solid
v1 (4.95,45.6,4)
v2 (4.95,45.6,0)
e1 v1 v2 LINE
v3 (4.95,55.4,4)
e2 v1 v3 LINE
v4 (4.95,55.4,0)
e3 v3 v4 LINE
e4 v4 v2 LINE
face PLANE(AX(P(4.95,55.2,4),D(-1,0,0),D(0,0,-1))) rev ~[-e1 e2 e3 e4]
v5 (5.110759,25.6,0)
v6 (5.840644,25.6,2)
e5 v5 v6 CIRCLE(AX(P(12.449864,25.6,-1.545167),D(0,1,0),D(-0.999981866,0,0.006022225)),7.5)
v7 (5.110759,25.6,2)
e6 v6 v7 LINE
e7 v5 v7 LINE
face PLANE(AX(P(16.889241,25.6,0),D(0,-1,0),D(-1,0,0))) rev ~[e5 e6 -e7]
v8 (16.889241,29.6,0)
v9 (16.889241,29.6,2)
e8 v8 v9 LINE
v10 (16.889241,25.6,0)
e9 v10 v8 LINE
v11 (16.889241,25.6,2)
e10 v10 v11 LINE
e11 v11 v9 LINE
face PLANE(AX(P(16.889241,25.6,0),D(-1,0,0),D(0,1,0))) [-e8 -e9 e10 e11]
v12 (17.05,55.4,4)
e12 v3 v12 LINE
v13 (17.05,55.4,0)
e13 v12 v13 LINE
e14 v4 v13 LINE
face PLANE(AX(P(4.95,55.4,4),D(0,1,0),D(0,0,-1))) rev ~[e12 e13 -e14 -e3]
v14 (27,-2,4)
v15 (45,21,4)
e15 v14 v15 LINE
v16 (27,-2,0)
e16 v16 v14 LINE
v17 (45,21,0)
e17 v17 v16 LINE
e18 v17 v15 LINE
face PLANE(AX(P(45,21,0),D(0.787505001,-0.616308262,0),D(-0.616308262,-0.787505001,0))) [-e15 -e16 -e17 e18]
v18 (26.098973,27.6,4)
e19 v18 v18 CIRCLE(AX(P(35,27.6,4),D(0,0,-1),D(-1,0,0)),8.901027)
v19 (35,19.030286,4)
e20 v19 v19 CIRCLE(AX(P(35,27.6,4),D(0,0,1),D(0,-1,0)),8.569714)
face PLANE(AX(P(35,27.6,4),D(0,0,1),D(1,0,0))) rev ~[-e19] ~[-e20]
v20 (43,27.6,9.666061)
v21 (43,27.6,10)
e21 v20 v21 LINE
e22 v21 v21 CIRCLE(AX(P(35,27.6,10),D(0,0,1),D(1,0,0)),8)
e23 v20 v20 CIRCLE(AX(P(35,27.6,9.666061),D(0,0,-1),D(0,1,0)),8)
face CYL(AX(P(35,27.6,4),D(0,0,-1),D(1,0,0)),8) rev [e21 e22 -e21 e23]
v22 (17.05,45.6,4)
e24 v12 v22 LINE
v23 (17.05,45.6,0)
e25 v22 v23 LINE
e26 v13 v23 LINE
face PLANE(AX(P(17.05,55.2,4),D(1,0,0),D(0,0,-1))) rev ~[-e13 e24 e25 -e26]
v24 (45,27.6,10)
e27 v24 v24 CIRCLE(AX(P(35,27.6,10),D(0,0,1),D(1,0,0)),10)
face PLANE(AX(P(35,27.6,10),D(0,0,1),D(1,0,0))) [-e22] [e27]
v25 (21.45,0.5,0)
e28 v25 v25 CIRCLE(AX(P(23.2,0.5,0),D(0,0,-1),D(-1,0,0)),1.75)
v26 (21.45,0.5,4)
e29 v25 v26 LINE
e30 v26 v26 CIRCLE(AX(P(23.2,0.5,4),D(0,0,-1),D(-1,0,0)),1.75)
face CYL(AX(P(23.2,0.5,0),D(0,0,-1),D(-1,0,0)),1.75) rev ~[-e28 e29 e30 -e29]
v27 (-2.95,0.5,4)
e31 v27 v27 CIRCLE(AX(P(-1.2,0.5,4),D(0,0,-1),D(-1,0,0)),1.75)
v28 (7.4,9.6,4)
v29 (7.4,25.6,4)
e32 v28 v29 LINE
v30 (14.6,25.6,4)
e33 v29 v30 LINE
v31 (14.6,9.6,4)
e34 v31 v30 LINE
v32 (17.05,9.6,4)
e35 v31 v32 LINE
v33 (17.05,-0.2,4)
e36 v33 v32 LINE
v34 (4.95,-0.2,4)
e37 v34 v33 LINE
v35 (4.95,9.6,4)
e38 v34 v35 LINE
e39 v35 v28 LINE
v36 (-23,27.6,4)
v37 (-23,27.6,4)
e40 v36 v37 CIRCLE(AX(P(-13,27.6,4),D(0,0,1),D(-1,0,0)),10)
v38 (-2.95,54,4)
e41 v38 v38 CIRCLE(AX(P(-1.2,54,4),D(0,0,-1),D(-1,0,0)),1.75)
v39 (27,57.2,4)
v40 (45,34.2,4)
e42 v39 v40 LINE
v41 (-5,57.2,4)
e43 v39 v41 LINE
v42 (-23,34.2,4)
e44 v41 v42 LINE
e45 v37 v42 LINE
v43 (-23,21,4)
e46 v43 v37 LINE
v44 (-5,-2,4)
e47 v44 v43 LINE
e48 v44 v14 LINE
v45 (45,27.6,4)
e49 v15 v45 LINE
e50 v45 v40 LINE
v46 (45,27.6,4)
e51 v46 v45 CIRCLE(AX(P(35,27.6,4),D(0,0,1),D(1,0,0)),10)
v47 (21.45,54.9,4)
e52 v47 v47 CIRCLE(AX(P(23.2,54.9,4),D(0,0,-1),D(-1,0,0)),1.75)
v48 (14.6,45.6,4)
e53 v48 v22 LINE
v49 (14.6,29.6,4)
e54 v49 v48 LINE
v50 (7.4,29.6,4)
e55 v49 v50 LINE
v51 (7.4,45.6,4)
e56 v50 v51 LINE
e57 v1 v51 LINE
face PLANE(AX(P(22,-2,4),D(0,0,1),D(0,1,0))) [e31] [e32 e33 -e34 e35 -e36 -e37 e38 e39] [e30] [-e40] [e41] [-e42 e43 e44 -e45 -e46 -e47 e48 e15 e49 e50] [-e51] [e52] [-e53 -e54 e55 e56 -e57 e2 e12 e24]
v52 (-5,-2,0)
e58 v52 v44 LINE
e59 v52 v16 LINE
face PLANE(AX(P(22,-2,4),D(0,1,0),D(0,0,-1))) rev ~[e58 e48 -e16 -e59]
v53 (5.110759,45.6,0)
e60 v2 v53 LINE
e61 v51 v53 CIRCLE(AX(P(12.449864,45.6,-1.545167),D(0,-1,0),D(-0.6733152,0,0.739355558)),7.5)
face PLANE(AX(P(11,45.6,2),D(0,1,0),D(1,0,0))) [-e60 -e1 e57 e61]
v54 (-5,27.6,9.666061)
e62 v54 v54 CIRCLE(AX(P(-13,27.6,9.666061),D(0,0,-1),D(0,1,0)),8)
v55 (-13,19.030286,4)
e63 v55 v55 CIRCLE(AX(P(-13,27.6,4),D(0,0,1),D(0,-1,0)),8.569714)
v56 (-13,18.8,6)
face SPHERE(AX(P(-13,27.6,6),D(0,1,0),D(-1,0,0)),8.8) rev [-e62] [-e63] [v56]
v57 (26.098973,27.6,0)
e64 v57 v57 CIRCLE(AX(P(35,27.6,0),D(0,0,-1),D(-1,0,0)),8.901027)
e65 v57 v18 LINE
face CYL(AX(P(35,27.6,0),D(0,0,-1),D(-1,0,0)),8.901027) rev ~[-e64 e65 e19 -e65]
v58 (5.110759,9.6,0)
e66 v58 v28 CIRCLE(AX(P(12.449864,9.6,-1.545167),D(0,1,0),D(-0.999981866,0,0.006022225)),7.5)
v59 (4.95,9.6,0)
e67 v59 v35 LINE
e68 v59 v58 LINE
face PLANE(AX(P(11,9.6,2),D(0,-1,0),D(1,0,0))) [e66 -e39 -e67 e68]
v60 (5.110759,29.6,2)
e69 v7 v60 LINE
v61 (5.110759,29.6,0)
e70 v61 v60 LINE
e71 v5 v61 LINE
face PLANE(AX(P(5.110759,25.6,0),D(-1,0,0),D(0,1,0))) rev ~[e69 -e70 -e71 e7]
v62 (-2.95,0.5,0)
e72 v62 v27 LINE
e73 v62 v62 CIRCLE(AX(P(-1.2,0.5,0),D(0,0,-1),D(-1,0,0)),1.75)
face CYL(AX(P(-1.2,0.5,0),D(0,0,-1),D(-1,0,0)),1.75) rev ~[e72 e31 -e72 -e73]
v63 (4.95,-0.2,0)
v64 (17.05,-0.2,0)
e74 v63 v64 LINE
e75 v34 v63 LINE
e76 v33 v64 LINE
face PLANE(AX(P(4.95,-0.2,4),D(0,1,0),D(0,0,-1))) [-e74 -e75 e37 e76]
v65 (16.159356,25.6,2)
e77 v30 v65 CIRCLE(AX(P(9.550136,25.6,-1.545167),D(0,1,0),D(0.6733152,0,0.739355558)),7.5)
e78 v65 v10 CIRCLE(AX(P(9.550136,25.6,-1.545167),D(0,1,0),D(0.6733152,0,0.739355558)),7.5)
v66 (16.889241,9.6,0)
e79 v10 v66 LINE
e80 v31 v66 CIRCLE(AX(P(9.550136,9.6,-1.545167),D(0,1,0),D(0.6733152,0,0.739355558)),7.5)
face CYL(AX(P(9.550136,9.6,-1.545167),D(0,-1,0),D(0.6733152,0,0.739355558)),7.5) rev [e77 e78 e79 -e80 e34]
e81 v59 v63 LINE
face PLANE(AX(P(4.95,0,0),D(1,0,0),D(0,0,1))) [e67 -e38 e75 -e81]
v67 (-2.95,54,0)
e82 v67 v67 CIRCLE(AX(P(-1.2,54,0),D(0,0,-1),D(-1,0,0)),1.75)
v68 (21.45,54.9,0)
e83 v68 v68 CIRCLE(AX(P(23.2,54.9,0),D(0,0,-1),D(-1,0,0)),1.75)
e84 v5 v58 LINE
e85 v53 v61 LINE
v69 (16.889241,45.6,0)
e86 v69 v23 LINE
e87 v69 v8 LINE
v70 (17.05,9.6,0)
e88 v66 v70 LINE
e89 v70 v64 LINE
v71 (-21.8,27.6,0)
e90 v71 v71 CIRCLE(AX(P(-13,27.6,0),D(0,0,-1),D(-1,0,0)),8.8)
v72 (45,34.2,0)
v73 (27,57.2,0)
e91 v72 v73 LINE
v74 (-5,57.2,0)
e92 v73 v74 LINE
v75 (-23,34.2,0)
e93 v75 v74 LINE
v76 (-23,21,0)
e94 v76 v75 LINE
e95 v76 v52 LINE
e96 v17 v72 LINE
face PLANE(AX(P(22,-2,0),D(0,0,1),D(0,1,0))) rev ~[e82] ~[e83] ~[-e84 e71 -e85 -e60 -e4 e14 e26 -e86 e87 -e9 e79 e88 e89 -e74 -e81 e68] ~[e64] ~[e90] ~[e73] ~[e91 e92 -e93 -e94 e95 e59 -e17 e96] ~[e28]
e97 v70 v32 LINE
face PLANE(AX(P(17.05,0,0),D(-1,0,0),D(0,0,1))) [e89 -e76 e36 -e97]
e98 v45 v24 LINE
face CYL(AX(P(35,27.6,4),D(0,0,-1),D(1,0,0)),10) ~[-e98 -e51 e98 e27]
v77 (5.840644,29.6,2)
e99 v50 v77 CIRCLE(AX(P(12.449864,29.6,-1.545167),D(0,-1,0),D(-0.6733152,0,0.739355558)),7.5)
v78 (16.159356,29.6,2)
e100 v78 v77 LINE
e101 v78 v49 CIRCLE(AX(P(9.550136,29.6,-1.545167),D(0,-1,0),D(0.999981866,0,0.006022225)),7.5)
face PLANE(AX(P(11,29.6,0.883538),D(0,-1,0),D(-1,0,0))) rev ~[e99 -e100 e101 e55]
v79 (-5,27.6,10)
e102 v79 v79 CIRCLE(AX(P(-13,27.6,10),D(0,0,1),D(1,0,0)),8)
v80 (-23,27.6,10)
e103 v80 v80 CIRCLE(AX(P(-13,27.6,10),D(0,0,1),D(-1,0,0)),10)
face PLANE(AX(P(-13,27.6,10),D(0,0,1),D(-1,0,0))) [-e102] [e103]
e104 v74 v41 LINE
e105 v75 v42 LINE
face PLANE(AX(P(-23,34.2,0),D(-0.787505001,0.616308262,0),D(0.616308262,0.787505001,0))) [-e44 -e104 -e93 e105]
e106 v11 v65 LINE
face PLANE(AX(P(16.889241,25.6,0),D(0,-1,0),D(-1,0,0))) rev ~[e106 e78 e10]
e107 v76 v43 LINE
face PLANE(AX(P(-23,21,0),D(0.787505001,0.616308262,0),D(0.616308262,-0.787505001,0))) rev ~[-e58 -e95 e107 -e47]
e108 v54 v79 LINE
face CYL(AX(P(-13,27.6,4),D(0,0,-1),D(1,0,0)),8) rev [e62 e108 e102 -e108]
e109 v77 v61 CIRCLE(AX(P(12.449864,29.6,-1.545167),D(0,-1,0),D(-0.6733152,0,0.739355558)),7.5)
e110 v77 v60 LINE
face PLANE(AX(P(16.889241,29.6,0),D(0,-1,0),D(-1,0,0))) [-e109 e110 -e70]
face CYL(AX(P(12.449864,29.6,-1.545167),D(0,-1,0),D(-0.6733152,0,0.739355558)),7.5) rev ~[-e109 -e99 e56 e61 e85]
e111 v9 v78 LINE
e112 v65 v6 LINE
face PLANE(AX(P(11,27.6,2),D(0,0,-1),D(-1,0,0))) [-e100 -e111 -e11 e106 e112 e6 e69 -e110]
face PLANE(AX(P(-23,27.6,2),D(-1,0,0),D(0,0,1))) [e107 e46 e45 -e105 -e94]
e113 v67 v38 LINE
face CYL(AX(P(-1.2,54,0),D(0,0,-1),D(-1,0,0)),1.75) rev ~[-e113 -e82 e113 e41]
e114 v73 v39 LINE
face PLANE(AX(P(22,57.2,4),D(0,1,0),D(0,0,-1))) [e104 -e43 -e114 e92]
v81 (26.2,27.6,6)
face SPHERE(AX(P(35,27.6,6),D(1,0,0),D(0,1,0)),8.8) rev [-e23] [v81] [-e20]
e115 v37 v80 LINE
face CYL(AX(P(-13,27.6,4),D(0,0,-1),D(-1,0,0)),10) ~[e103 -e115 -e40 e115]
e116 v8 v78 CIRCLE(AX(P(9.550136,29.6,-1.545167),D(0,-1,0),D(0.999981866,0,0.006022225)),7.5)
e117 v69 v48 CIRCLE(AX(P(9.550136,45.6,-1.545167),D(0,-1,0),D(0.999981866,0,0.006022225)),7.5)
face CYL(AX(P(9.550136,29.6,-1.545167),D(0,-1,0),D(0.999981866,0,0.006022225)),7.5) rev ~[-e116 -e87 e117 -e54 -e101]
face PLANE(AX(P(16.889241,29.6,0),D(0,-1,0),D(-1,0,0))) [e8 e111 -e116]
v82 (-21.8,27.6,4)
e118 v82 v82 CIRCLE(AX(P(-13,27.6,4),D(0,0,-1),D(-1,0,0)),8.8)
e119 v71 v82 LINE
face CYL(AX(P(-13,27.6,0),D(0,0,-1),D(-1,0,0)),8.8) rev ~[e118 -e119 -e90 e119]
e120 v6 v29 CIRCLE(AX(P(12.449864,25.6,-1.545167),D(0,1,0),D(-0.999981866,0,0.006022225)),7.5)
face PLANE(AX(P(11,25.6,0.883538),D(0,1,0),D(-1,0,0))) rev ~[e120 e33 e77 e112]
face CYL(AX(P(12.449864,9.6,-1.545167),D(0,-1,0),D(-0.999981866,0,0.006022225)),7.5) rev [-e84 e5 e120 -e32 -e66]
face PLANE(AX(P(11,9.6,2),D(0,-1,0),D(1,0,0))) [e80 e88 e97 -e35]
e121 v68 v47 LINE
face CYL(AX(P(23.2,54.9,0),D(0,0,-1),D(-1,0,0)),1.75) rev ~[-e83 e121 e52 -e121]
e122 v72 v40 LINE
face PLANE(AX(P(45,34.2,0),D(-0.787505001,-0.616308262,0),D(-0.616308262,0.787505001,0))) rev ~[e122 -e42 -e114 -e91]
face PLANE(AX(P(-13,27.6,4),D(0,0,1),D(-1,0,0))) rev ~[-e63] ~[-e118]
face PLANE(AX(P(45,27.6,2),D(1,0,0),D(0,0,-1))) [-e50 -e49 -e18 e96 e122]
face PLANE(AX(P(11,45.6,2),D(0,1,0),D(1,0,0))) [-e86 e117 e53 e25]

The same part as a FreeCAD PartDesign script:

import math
import FreeCAD as App
import Part
import Sketcher

V = App.Vector
Q = App.Units.Quantity


def add_polygon(sketch, points):
    """Adds a closed chain of lines whose ends are joined by coincident constraints."""
    first, n = sketch.GeometryCount, len(points)
    for a, b in zip(points, points[1:] + points[:1]):
        sketch.addGeometry(Part.LineSegment(App.Vector(*a, 0), App.Vector(*b, 0)), False)
    for i in range(n):
        sketch.addConstraint(Sketcher.Constraint("Coincident", first + i, 2, first + (i + 1) % n, 1))

doc = App.newDocument("Part")
body = doc.addObject("PartDesign::Body", "Body")

sketch1 = body.newObject("Sketcher::SketchObject", "Sketch")
sketch1.AttachmentSupport = (doc.getObject("XY_Plane"), [""])
sketch1.MapMode = "FlatFace"
add_polygon(sketch1, [(0, 55.2), (0, 0), (22, 0), (22, 55.2)])
sketch1.addConstraint([
    Sketcher.Constraint("Vertical", 0),
    Sketcher.Constraint("Horizontal", 1),
    Sketcher.Constraint("Vertical", 2),
    Sketcher.Constraint("Horizontal", 3),
    Sketcher.Constraint("Coincident", 0, 2, -1, 1),
    Sketcher.Constraint("DistanceX", 1, 1, 1, 2, Q("22 mm")),
    Sketcher.Constraint("DistanceY", 0, 2, 0, 1, Q("55.2 mm")),
])
pad1 = body.newObject("PartDesign::Pad", "Pad")
pad1.Profile = sketch1
pad1.Length = 4

sketch2 = body.newObject("Sketcher::SketchObject", "Sketch001")
sketch2.AttachmentSupport = (doc.getObject("XZ_Plane"), [""])
sketch2.MapMode = "FlatFace"
sketch2.AttachmentOffset = App.Placement(V(0, 0, -55.2), App.Rotation())
add_polygon(sketch2, [(4.95, 0), (4.95, 4), (17.05, 4), (17.05, 0)])
sketch2.addConstraint([
    Sketcher.Constraint("Vertical", 0),
    Sketcher.Constraint("Horizontal", 1),
    Sketcher.Constraint("Vertical", 2),
    Sketcher.Constraint("Horizontal", 3),
    Sketcher.Constraint("PointOnObject", 2, 2, -1),
    Sketcher.Constraint("DistanceY", 0, 1, 0, 2, Q("4 mm")),
    Sketcher.Constraint("DistanceX", 1, 1, 1, 2, Q("12.1 mm")),
    Sketcher.Constraint("DistanceX", -1, 1, 0, 2, Q("4.95 mm")),
])
pocket1 = body.newObject("PartDesign::Pocket", "Pocket")
pocket1.Profile = sketch2
pocket1.Length = 9.6
pocket1.Reversed = True

sketch3 = body.newObject("Sketcher::SketchObject", "Sketch002")
sketch3.AttachmentSupport = (doc.getObject("XZ_Plane"), [""])
sketch3.MapMode = "FlatFace"
add_polygon(sketch3, [(4.95, 4), (4.95, 0), (17.05, 0), (17.05, 4)])
sketch3.addConstraint([
    Sketcher.Constraint("Vertical", 0),
    Sketcher.Constraint("Horizontal", 1),
    Sketcher.Constraint("Vertical", 2),
    Sketcher.Constraint("Horizontal", 3),
    Sketcher.Constraint("PointOnObject", 0, 2, -1),
    Sketcher.Constraint("DistanceY", 0, 2, 0, 1, Q("4 mm")),
    Sketcher.Constraint("DistanceX", 1, 1, 1, 2, Q("12.1 mm")),
    Sketcher.Constraint("DistanceX", -1, 1, 0, 2, Q("4.95 mm")),
])
pocket2 = body.newObject("PartDesign::Pocket", "Pocket001")
pocket2.Profile = sketch3
pocket2.Length = 9.6

sketch4 = body.newObject("Sketcher::SketchObject", "Sketch003")
sketch4.AttachmentSupport = (doc.getObject("XZ_Plane"), [""])
sketch4.MapMode = "FlatFace"
sketch4.AttachmentOffset = App.Placement(V(0, 0, -9.6), App.Rotation())
sketch4.addGeometry([
    Part.LineSegment(V(14.6, 4, 0), V(7.4, 4, 0)),
    Part.ArcOfCircle(Part.Circle(V(12.449864, -1.545167, 0), V(0, 0, 1), 7.5), math.radians(132.323452), math.radians(179.65495)),
    Part.LineSegment(V(4.95, -1.5, 0), V(17.05, -1.5, 0)),
    Part.ArcOfCircle(Part.Circle(V(9.550136, -1.545167, 0), V(0, 0, 1), 7.5), math.radians(0.34505), math.radians(47.676548)),
], False)
sketch4.addConstraint([
    Sketcher.Constraint("Coincident", 0, 2, 1, 1),
    Sketcher.Constraint("Coincident", 1, 2, 2, 1),
    Sketcher.Constraint("Coincident", 2, 2, 3, 1),
    Sketcher.Constraint("Coincident", 3, 2, 0, 1),
    Sketcher.Constraint("Horizontal", 0),
    Sketcher.Constraint("Horizontal", 2),
    Sketcher.Constraint("Equal", 1, 3),
    Sketcher.Constraint("Horizontal", 1, 3, 3, 3),
    Sketcher.Constraint("Radius", 1, Q("7.5 mm")),
    Sketcher.Constraint("DistanceX", 0, 2, 0, 1, Q("7.2 mm")),
    Sketcher.Constraint("DistanceX", 2, 1, 2, 2, Q("12.1 mm")),
    Sketcher.Constraint("DistanceY", -1, 1, 0, 2, Q("4 mm")),
    Sketcher.Constraint("DistanceX", -1, 1, 0, 2, Q("7.4 mm")),
    Sketcher.Constraint("DistanceY", 1, 2, -1, 1, Q("1.5 mm")),
])
pocket3 = body.newObject("PartDesign::Pocket", "Pocket002")
pocket3.Profile = sketch4
pocket3.Length = 16

sketch5 = body.newObject("Sketcher::SketchObject", "Sketch004")
sketch5.AttachmentSupport = (doc.getObject("XZ_Plane"), [""])
sketch5.MapMode = "FlatFace"
sketch5.AttachmentOffset = App.Placement(V(0, 0, -29.6), App.Rotation())
sketch5.addGeometry([
    Part.LineSegment(V(17.05, -1.5, 0), V(4.95, -1.5, 0)),
    Part.ArcOfCircle(Part.Circle(V(12.449864, -1.545167, 0), V(0, 0, 1), 7.5), math.radians(132.323452), math.radians(179.65495)),
    Part.LineSegment(V(7.4, 4, 0), V(14.6, 4, 0)),
    Part.ArcOfCircle(Part.Circle(V(9.550136, -1.545167, 0), V(0, 0, 1), 7.5), math.radians(0.34505), math.radians(47.676548)),
], False)
sketch5.addConstraint([
    Sketcher.Constraint("Coincident", 0, 2, 1, 2),
    Sketcher.Constraint("Coincident", 1, 1, 2, 1),
    Sketcher.Constraint("Coincident", 2, 2, 3, 2),
    Sketcher.Constraint("Coincident", 3, 1, 0, 1),
    Sketcher.Constraint("Horizontal", 0),
    Sketcher.Constraint("Horizontal", 2),
    Sketcher.Constraint("Equal", 1, 3),
    Sketcher.Constraint("Horizontal", 1, 3, 3, 3),
    Sketcher.Constraint("Radius", 1, Q("7.5 mm")),
    Sketcher.Constraint("DistanceX", 0, 2, 0, 1, Q("12.1 mm")),
    Sketcher.Constraint("DistanceX", 2, 1, 2, 2, Q("7.2 mm")),
    Sketcher.Constraint("DistanceY", -1, 1, 1, 1, Q("4 mm")),
    Sketcher.Constraint("DistanceY", 0, 2, -1, 1, Q("1.5 mm")),
    Sketcher.Constraint("DistanceX", -1, 1, 1, 1, Q("7.4 mm")),
])
pocket4 = body.newObject("PartDesign::Pocket", "Pocket003")
pocket4.Profile = sketch5
pocket4.Length = 16

sketch6 = body.newObject("Sketcher::SketchObject", "Sketch005")
sketch6.AttachmentSupport = (doc.getObject("XY_Plane"), [""])
sketch6.MapMode = "FlatFace"
add_polygon(sketch6, [(16.889241, 29.6), (16.889241, 25.6), (5.110759, 25.6), (5.110759, 29.6)])
sketch6.addConstraint([
    Sketcher.Constraint("Vertical", 0),
    Sketcher.Constraint("Horizontal", 1),
    Sketcher.Constraint("Vertical", 2),
    Sketcher.Constraint("Horizontal", 3),
    Sketcher.Constraint("DistanceY", 0, 2, 0, 1, Q("4 mm")),
    Sketcher.Constraint("DistanceY", -1, 1, 0, 2, Q("25.6 mm")),
    Sketcher.Constraint("DistanceX", 1, 2, 1, 1, Q("11.778482 mm")),
    Sketcher.Constraint("DistanceX", -1, 1, 0, 2, Q("16.889241 mm")),
])
pocket5 = body.newObject("PartDesign::Pocket", "Pocket004")
pocket5.Profile = sketch6
pocket5.Length = 2
pocket5.Reversed = True

sketch7 = body.newObject("Sketcher::SketchObject", "Sketch006")
sketch7.AttachmentSupport = (doc.getObject("XZ_Plane"), [""])
sketch7.MapMode = "FlatFace"
sketch7.AttachmentOffset = App.Placement(V(0, 0, -55.2), App.Rotation())
add_polygon(sketch7, [(0, 0), (0, 4), (4.95, 4), (4.95, 0)])
add_polygon(sketch7, [(17.05, 0), (17.05, 4), (22, 4), (22, 0)])
sketch7.addConstraint([
    Sketcher.Constraint("Vertical", 0),
    Sketcher.Constraint("Horizontal", 1),
    Sketcher.Constraint("Vertical", 2),
    Sketcher.Constraint("Horizontal", 3),
    Sketcher.Constraint("Vertical", 4),
    Sketcher.Constraint("Horizontal", 5),
    Sketcher.Constraint("Vertical", 6),
    Sketcher.Constraint("Horizontal", 7),
    Sketcher.Constraint("Coincident", 3, 2, -1, 1),
    Sketcher.Constraint("PointOnObject", 6, 2, -1),
    Sketcher.Constraint("Horizontal", 1, 2, 4, 2),
    Sketcher.Constraint("Equal", 3, 5),
    Sketcher.Constraint("DistanceY", 0, 1, 0, 2, Q("4 mm")),
    Sketcher.Constraint("DistanceX", -1, 1, 5, 2, Q("22 mm")),
    Sketcher.Constraint("DistanceX", 1, 1, 1, 2, Q("4.95 mm")),
])
pad2 = body.newObject("PartDesign::Pad", "Pad001")
pad2.Profile = sketch7
pad2.Length = 2
pad2.Reversed = True

sketch8 = body.newObject("Sketcher::SketchObject", "Sketch007")
sketch8.AttachmentSupport = (doc.getObject("YZ_Plane"), [""])
sketch8.MapMode = "FlatFace"
sketch8.AttachmentOffset = App.Placement(V(0, 0, 4.95), App.Rotation())
add_polygon(sketch8, [(57.2, 4), (55.4, 4), (55.4, 0), (57.2, 0)])
sketch8.addConstraint([
    Sketcher.Constraint("Horizontal", 0),
    Sketcher.Constraint("Vertical", 1),
    Sketcher.Constraint("Horizontal", 2),
    Sketcher.Constraint("Vertical", 3),
    Sketcher.Constraint("PointOnObject", 1, 2, -1),
    Sketcher.Constraint("DistanceY", 1, 2, 1, 1, Q("4 mm")),
    Sketcher.Constraint("DistanceX", 0, 2, 0, 1, Q("1.8 mm")),
    Sketcher.Constraint("DistanceX", -1, 1, 0, 2, Q("55.4 mm")),
])
pad3 = body.newObject("PartDesign::Pad", "Pad002")
pad3.Profile = sketch8
pad3.Length = 12.1

sketch9 = body.newObject("Sketcher::SketchObject", "Sketch008")
sketch9.AttachmentSupport = (doc.getObject("XZ_Plane"), [""])
sketch9.MapMode = "FlatFace"
add_polygon(sketch9, [(17.05, 4), (17.05, 0), (22, 0), (22, 4)])
add_polygon(sketch9, [(0, 4), (0, 0), (4.95, 0), (4.95, 4)])
sketch9.addConstraint([
    Sketcher.Constraint("Vertical", 0),
    Sketcher.Constraint("Horizontal", 1),
    Sketcher.Constraint("Vertical", 2),
    Sketcher.Constraint("Horizontal", 3),
    Sketcher.Constraint("Vertical", 4),
    Sketcher.Constraint("Horizontal", 5),
    Sketcher.Constraint("Vertical", 6),
    Sketcher.Constraint("Horizontal", 7),
    Sketcher.Constraint("Coincident", 4, 2, -1, 1),
    Sketcher.Constraint("PointOnObject", 0, 2, -1),
    Sketcher.Constraint("Horizontal", 3, 2, 6, 2),
    Sketcher.Constraint("Equal", 3, 5),
    Sketcher.Constraint("DistanceY", 0, 2, 0, 1, Q("4 mm")),
    Sketcher.Constraint("DistanceX", -1, 1, 1, 2, Q("22 mm")),
    Sketcher.Constraint("DistanceX", 1, 1, 1, 2, Q("4.95 mm")),
])
pad4 = body.newObject("PartDesign::Pad", "Pad003")
pad4.Profile = sketch9
pad4.Length = 2

sketch10 = body.newObject("Sketcher::SketchObject", "Sketch009")
sketch10.AttachmentSupport = (doc.getObject("YZ_Plane"), [""])
sketch10.MapMode = "FlatFace"
sketch10.AttachmentOffset = App.Placement(V(0, 0, 4.95), App.Rotation())
add_polygon(sketch10, [(-0.2, 4), (-2, 4), (-2, 0), (-0.2, 0)])
sketch10.addConstraint([
    Sketcher.Constraint("Horizontal", 0),
    Sketcher.Constraint("Vertical", 1),
    Sketcher.Constraint("Horizontal", 2),
    Sketcher.Constraint("Vertical", 3),
    Sketcher.Constraint("PointOnObject", 1, 2, -1),
    Sketcher.Constraint("DistanceY", 1, 2, 1, 1, Q("4 mm")),
    Sketcher.Constraint("DistanceX", 0, 2, 0, 1, Q("1.8 mm")),
    Sketcher.Constraint("DistanceX", 0, 2, -1, 1, Q("2 mm")),
])
pad5 = body.newObject("PartDesign::Pad", "Pad004")
pad5.Profile = sketch10
pad5.Length = 12.1

sketch11 = body.newObject("Sketcher::SketchObject", "Sketch010")
sketch11.AttachmentSupport = (doc.getObject("YZ_Plane"), [""])
sketch11.MapMode = "FlatFace"
add_polygon(sketch11, [(57.2, 0), (-2, 0), (-2, 4), (57.2, 4)])
sketch11.addConstraint([
    Sketcher.Constraint("Horizontal", 0),
    Sketcher.Constraint("Vertical", 1),
    Sketcher.Constraint("Horizontal", 2),
    Sketcher.Constraint("Vertical", 3),
    Sketcher.Constraint("PointOnObject", 0, 2, -1),
    Sketcher.Constraint("DistanceY", 1, 1, 1, 2, Q("4 mm")),
    Sketcher.Constraint("DistanceX", 0, 2, 0, 1, Q("59.2 mm")),
    Sketcher.Constraint("DistanceX", 0, 2, -1, 1, Q("2 mm")),
])
pad6 = body.newObject("PartDesign::Pad", "Pad005")
pad6.Profile = sketch11
pad6.Length = 23
pad6.Reversed = True

sketch12 = body.newObject("Sketcher::SketchObject", "Sketch011")
sketch12.AttachmentSupport = (doc.getObject("YZ_Plane"), [""])
sketch12.MapMode = "FlatFace"
sketch12.AttachmentOffset = App.Placement(V(0, 0, 22), App.Rotation())
add_polygon(sketch12, [(57.2, 4), (-2, 4), (-2, 0), (57.2, 0)])
sketch12.addConstraint([
    Sketcher.Constraint("Horizontal", 0),
    Sketcher.Constraint("Vertical", 1),
    Sketcher.Constraint("Horizontal", 2),
    Sketcher.Constraint("Vertical", 3),
    Sketcher.Constraint("PointOnObject", 1, 2, -1),
    Sketcher.Constraint("DistanceY", 1, 2, 1, 1, Q("4 mm")),
    Sketcher.Constraint("DistanceX", 0, 2, 0, 1, Q("59.2 mm")),
    Sketcher.Constraint("DistanceX", 0, 2, -1, 1, Q("2 mm")),
])
pad7 = body.newObject("PartDesign::Pad", "Pad006")
pad7.Profile = sketch12
pad7.Length = 23

sketch13 = body.newObject("Sketcher::SketchObject", "Sketch012")
sketch13.AttachmentSupport = (doc.getObject("XY_Plane"), [""])
sketch13.MapMode = "FlatFace"
sketch13.addGeometry([
    Part.Circle(V(23.2, 54.9, 0), V(0, 0, 1), 1.75),
    Part.Circle(V(-1.2, 54, 0), V(0, 0, 1), 1.75),
    Part.Circle(V(-1.2, 0.5, 0), V(0, 0, 1), 1.75),
    Part.Circle(V(23.2, 0.5, 0), V(0, 0, 1), 1.75),
], False)
sketch13.addConstraint([
    Sketcher.Constraint("Equal", 0, 1),
    Sketcher.Constraint("Equal", 1, 2),
    Sketcher.Constraint("Equal", 2, 3),
    Sketcher.Constraint("Horizontal", 2, 3, 3, 3),
    Sketcher.Constraint("Vertical", 1, 3, 2, 3),
    Sketcher.Constraint("Vertical", 0, 3, 3, 3),
    Sketcher.Constraint("Diameter", 0, Q("3.5 mm")),
    Sketcher.Constraint("DistanceY", -1, 1, 1, 3, Q("54 mm")),
    Sketcher.Constraint("DistanceX", -1, 1, 0, 3, Q("23.2 mm")),
    Sketcher.Constraint("DistanceY", -1, 1, 0, 3, Q("54.9 mm")),
    Sketcher.Constraint("DistanceX", 1, 3, -1, 1, Q("1.2 mm")),
    Sketcher.Constraint("DistanceY", -1, 1, 2, 3, Q("0.5 mm")),
])
pocket6 = body.newObject("PartDesign::Pocket", "Pocket005")
pocket6.Profile = sketch13
pocket6.Length = 11.5
pocket6.Reversed = True

sketch14 = body.newObject("Sketcher::SketchObject", "Sketch013")
sketch14.AttachmentSupport = (doc.getObject("XY_Plane"), [""])
sketch14.MapMode = "FlatFace"
sketch14.addGeometry([
    Part.Circle(V(-13, 27.6, 0), V(0, 0, 1), 8.8),
    Part.Circle(V(35, 27.6, 0), V(0, 0, 1), 8.901027),
], False)
sketch14.addConstraint([
    Sketcher.Constraint("Horizontal", 0, 3, 1, 3),
    Sketcher.Constraint("Diameter", 0, Q("17.6 mm")),
    Sketcher.Constraint("DistanceX", 0, 3, -1, 1, Q("13 mm")),
    Sketcher.Constraint("DistanceX", -1, 1, 1, 3, Q("35 mm")),
    Sketcher.Constraint("DistanceY", -1, 1, 0, 3, Q("27.6 mm")),
    Sketcher.Constraint("Diameter", 1, Q("17.802054 mm")),
])
pocket7 = body.newObject("PartDesign::Pocket", "Pocket006")
pocket7.Profile = sketch14
pocket7.Length = 4
pocket7.Reversed = True

sketch15 = body.newObject("Sketcher::SketchObject", "Sketch014")
sketch15.AttachmentSupport = (doc.getObject("XY_Plane"), [""])
sketch15.MapMode = "FlatFace"
add_polygon(sketch15, [(45, 57.2), (45, 34.2), (27, 57.2)])
add_polygon(sketch15, [(45, 21), (45, -2), (27, -2)])
add_polygon(sketch15, [(-23, 34.2), (-23, 57.2), (-5, 57.2)])
add_polygon(sketch15, [(-23, -2), (-23, 21), (-5, -2)])
sketch15.addConstraint([
    Sketcher.Constraint("Vertical", 0),
    Sketcher.Constraint("Horizontal", 2),
    Sketcher.Constraint("Vertical", 3),
    Sketcher.Constraint("Horizontal", 4),
    Sketcher.Constraint("Vertical", 6),
    Sketcher.Constraint("Horizontal", 7),
    Sketcher.Constraint("Vertical", 9),
    Sketcher.Constraint("Horizontal", 11),
    Sketcher.Constraint("Parallel", 5, 8),
    Sketcher.Constraint("Parallel", 1, 10),
    Sketcher.Constraint("Horizontal", 2, 2, 6, 2),
    Sketcher.Constraint("Horizontal", 0, 2, 8, 2),
    Sketcher.Constraint("Horizontal", 5, 2, 9, 2),
    Sketcher.Constraint("Horizontal", 4, 2, 10, 2),
    Sketcher.Constraint("Vertical", 2, 2, 3, 2),
    Sketcher.Constraint("Vertical", 1, 2, 4, 2),
    Sketcher.Constraint("Vertical", 8, 2, 9, 2),
    Sketcher.Constraint("Vertical", 7, 2, 10, 2),
    Sketcher.Constraint("DistanceX", 2, 1, 2, 2, Q("18 mm")),
    Sketcher.Constraint("DistanceY", 0, 2, 0, 1, Q("23 mm")),
    Sketcher.Constraint("DistanceX", -1, 1, 0, 2, Q("45 mm")),
    Sketcher.Constraint("DistanceY", 3, 2, -1, 1, Q("2 mm")),
    Sketcher.Constraint("DistanceX", 6, 2, -1, 1, Q("23 mm")),
    Sketcher.Constraint("DistanceY", -1, 1, 0, 2, Q("34.2 mm")),
])
pocket8 = body.newObject("PartDesign::Pocket", "Pocket007")
pocket8.Profile = sketch15
pocket8.Length = 10
pocket8.Reversed = True

sketch16 = body.newObject("Sketcher::SketchObject", "Sketch015")
sketch16.AttachmentSupport = (doc.getObject("XY_Plane"), [""])
sketch16.MapMode = "FlatFace"
sketch16.AttachmentOffset = App.Placement(V(0, 0, 4), App.Rotation())
sketch16.addGeometry([
    Part.Circle(V(35, 27.6, 0), V(0, 0, 1), 10),
    Part.Circle(V(35, 27.6, 0), V(0, 0, 1), 8),
    Part.Circle(V(-13, 27.6, 0), V(0, 0, 1), 10),
    Part.Circle(V(-13, 27.6, 0), V(0, 0, 1), 8),
], False)
sketch16.addConstraint([
    Sketcher.Constraint("Coincident", 1, 3, 0, 3),
    Sketcher.Constraint("Coincident", 3, 3, 2, 3),
    Sketcher.Constraint("Equal", 0, 2),
    Sketcher.Constraint("Equal", 1, 3),
    Sketcher.Constraint("Horizontal", 1, 3, 2, 3),
    Sketcher.Constraint("Diameter", 0, Q("20 mm")),
    Sketcher.Constraint("Diameter", 1, Q("16 mm")),
    Sketcher.Constraint("DistanceX", -1, 1, 0, 3, Q("35 mm")),
    Sketcher.Constraint("DistanceX", 2, 3, -1, 1, Q("13 mm")),
    Sketcher.Constraint("DistanceY", -1, 1, 0, 3, Q("27.6 mm")),
])
pad8 = body.newObject("PartDesign::Pad", "Pad007")
pad8.Profile = sketch16
pad8.Length = 6

sketch17 = body.newObject("Sketcher::SketchObject", "Sketch016")
sketch17.AttachmentSupport = (doc.getObject("XY_Plane"), [""])
sketch17.MapMode = "FlatFace"
sketch17.AttachmentOffset = App.Placement(V(0, 0, 6), App.Rotation())
sketch17.addGeometry([
    Part.LineSegment(V(26.2, 27.6, 0), V(43.8, 27.6, 0)),
    Part.ArcOfCircle(Part.Circle(V(35, 27.6, 0), V(0, 0, 1), 8.8), math.radians(0), math.radians(180)),
], False)
sketch17.addGeometry(Part.LineSegment(V(43.8, 27.6, 0), V(26.2, 27.6, 0)), True)
sketch17.addConstraint([
    Sketcher.Constraint("Coincident", 0, 1, 1, 2),
    Sketcher.Constraint("Coincident", 1, 1, 0, 2),
    Sketcher.Constraint("Horizontal", 0),
    Sketcher.Constraint("Horizontal", 2),
    Sketcher.Constraint("Coincident", 2, 1, 1, 1),
    Sketcher.Constraint("Horizontal", 1, 3, 0, 1),
    Sketcher.Constraint("Equal", 0, 2),
    Sketcher.Constraint("Radius", 1, Q("8.8 mm")),
    Sketcher.Constraint("DistanceX", -1, 1, 1, 3, Q("35 mm")),
    Sketcher.Constraint("DistanceY", -1, 1, 1, 3, Q("27.6 mm")),
])
groove = body.newObject("PartDesign::Groove", "Groove")
groove.Profile = sketch17
groove.ReferenceAxis = (sketch17, ["Axis0"])
groove.Angle = 360

sketch18 = body.newObject("Sketcher::SketchObject", "Sketch017")
sketch18.AttachmentSupport = (doc.getObject("XY_Plane"), [""])
sketch18.MapMode = "FlatFace"
sketch18.AttachmentOffset = App.Placement(V(0, 0, 6), App.Rotation())
sketch18.addGeometry([
    Part.LineSegment(V(-13, 18.8, 0), V(-13, 36.4, 0)),
    Part.ArcOfCircle(Part.Circle(V(-13, 27.6, 0), V(0, 0, 1), 8.8), math.radians(90), math.radians(270)),
], False)
sketch18.addGeometry(Part.LineSegment(V(-13, 36.4, 0), V(-13, 18.8, 0)), True)
sketch18.addConstraint([
    Sketcher.Constraint("Coincident", 0, 1, 1, 2),
    Sketcher.Constraint("Coincident", 1, 1, 0, 2),
    Sketcher.Constraint("Vertical", 0),
    Sketcher.Constraint("Vertical", 2),
    Sketcher.Constraint("Coincident", 2, 1, 1, 1),
    Sketcher.Constraint("Vertical", 1, 3, 0, 1),
    Sketcher.Constraint("Equal", 0, 2),
    Sketcher.Constraint("Radius", 1, Q("8.8 mm")),
    Sketcher.Constraint("DistanceX", 1, 3, -1, 1, Q("13 mm")),
    Sketcher.Constraint("DistanceY", -1, 1, 1, 3, Q("27.6 mm")),
])
groove2 = body.newObject("PartDesign::Groove", "Groove001")
groove2.Profile = sketch18
groove2.ReferenceAxis = (sketch18, ["Axis0"])
groove2.Angle = 360

doc.recompute()
